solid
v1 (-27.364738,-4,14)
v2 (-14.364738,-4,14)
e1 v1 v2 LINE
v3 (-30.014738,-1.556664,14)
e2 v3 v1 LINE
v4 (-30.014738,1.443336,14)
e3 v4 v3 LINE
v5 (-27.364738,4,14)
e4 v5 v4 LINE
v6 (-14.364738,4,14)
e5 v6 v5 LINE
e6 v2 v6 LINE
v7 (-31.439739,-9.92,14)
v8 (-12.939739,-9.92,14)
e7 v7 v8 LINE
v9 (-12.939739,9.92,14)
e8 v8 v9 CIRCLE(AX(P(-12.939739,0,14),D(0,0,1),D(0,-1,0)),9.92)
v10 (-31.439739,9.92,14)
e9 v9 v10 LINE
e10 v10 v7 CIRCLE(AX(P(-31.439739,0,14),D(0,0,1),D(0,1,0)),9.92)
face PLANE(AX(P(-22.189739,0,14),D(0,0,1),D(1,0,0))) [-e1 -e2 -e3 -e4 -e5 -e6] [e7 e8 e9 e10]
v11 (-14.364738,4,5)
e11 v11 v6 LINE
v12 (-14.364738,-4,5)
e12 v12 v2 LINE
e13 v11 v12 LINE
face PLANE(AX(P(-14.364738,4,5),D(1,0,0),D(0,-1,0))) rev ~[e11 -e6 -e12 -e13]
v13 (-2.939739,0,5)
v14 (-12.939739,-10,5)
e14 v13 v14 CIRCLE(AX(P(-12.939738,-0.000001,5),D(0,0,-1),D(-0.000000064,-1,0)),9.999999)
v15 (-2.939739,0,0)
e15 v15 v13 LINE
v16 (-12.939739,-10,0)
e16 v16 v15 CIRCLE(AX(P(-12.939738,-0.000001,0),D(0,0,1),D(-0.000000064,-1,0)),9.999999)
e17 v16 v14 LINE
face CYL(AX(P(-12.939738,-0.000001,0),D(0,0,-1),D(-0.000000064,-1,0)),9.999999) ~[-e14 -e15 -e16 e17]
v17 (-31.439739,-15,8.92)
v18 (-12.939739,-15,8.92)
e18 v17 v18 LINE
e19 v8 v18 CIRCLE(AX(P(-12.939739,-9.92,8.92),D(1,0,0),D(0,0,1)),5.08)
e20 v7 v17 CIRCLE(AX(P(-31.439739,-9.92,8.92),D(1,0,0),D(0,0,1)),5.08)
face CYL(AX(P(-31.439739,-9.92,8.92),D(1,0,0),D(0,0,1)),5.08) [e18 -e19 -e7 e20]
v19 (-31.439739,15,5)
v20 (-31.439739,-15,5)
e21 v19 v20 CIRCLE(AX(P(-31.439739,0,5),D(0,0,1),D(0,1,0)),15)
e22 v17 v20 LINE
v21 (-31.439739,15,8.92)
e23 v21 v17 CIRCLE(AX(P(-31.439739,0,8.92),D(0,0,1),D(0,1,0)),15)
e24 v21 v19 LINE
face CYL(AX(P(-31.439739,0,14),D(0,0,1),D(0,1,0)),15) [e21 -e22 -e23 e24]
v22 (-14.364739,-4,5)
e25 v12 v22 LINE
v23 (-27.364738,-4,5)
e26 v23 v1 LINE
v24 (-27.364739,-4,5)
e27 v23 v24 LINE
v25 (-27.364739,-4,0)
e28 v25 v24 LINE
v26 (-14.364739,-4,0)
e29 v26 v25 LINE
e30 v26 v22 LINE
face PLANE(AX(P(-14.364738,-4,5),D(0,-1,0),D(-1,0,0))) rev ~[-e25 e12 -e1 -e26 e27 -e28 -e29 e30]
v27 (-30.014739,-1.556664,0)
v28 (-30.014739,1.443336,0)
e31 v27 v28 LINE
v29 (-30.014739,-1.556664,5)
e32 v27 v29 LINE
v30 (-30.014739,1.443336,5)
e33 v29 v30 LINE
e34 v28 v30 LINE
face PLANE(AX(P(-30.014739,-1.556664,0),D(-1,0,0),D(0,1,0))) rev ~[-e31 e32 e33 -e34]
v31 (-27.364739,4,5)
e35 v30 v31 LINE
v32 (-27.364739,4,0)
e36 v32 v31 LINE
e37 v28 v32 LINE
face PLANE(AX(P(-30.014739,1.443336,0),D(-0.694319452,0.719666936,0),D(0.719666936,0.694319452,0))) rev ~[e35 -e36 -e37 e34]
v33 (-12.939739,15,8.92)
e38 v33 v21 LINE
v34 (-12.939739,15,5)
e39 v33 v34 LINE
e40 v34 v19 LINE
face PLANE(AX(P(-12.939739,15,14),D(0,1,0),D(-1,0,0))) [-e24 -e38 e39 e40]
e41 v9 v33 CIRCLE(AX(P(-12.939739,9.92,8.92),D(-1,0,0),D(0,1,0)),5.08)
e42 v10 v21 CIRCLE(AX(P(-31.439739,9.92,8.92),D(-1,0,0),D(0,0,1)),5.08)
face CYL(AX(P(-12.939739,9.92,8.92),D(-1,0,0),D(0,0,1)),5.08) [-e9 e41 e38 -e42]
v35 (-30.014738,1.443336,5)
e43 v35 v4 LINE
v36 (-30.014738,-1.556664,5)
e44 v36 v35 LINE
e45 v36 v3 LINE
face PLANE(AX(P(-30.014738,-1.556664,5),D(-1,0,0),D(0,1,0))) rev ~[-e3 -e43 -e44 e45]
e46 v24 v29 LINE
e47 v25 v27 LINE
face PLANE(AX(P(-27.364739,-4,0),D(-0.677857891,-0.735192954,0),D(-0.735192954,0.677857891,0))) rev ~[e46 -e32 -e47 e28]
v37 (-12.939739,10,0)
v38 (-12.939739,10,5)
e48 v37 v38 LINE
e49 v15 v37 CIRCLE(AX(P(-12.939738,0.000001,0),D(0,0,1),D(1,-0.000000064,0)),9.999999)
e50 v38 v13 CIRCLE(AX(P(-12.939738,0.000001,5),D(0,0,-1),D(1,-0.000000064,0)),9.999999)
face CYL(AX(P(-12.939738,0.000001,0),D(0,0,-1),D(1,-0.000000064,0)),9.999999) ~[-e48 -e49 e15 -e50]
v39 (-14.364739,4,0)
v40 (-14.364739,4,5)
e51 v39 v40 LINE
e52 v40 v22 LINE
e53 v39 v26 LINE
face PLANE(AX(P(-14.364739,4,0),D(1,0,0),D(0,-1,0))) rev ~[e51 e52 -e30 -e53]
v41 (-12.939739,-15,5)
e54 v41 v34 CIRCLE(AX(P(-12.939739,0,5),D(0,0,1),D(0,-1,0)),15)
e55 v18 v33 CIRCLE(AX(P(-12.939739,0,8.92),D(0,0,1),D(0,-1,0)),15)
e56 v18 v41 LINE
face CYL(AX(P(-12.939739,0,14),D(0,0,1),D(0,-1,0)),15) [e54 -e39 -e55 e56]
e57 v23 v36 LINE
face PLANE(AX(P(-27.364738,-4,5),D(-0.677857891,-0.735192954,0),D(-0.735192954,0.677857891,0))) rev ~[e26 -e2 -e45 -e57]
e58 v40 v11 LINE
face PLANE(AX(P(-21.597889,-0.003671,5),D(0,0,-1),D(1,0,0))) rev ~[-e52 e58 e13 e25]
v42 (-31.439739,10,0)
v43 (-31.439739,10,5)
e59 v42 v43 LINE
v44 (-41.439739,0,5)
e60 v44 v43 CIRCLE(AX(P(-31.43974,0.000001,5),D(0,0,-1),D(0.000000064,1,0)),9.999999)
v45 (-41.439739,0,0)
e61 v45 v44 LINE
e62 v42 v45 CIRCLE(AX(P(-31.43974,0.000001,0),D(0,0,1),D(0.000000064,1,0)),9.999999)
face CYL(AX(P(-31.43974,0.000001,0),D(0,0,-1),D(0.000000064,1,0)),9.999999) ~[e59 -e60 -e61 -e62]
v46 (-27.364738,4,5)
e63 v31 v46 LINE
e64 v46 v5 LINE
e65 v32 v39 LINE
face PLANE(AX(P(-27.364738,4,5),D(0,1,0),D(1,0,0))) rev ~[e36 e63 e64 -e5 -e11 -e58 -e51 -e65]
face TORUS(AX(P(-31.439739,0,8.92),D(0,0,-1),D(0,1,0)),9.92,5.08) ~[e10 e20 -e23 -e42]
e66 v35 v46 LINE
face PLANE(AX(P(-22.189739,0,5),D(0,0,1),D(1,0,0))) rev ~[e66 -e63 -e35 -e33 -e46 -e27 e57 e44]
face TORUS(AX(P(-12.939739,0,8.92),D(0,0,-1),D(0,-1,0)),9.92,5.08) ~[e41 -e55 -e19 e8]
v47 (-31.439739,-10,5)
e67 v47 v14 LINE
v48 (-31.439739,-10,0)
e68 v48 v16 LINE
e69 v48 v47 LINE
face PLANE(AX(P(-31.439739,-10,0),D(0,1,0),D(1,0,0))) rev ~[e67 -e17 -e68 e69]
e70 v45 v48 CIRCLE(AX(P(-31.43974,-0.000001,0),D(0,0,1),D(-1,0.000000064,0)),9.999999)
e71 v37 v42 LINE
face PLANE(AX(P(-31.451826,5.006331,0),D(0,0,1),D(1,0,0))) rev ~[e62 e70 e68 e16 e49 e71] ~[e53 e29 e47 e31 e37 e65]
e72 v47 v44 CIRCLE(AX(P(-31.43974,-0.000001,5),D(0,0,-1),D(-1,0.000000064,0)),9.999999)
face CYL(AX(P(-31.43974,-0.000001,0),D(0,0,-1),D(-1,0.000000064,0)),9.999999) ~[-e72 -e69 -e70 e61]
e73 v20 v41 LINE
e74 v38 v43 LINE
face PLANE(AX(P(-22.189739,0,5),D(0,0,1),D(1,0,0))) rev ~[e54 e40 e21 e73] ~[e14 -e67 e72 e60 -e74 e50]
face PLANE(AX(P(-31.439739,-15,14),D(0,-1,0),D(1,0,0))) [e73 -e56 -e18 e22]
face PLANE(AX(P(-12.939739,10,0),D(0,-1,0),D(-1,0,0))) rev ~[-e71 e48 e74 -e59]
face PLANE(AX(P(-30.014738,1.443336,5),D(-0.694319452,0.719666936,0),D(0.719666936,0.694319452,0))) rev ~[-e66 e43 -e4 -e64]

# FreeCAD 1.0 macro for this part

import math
import FreeCAD as App
import Part
import Sketcher

V = App.Vector


def edges_at(feature, points):
    """Names of the edges that pass closest to the given points."""
    edges = feature.Shape.Edges
    near = lambda p: min(range(len(edges)), key=lambda i: edges[i].distToShape(Part.Vertex(*p))[0])
    return sorted({f"Edge{near(p) + 1}" for p in points})


def add_polygon(sketch, points):
    """Adds a closed chain of lines whose ends are joined by coincident constraints."""
    first, n = sketch.GeometryCount, len(points)
    for a, b in zip(points, points[1:] + points[:1]):
        sketch.addGeometry(Part.LineSegment(App.Vector(*a, 0), App.Vector(*b, 0)), False)
    for i in range(n):
        sketch.addConstraint(Sketcher.Constraint("Coincident", first + i, 2, first + (i + 1) % n, 1))

doc = App.newDocument("Part")
body = doc.addObject("PartDesign::Body", "Body")

# Sketch on XY plane
sketch1 = body.newObject("Sketcher::SketchObject", "Sketch")
sketch1.AttachmentSupport = (doc.getObject("XY_Plane"), [""])
sketch1.MapMode = "FlatFace"
sketch1.addGeometry(Part.ArcOfCircle(Part.Circle(V(-31.4, 0, 0), V(0, 0, 1), 10), math.radians(90), math.radians(180)), False)  # 0
sketch1.addGeometry(Part.ArcOfCircle(Part.Circle(V(-31.4, 0, 0), V(0, 0, 1), 10), math.radians(180), math.radians(270)), False)  # 1
sketch1.addGeometry(Part.LineSegment(V(-31.4, -10, 0), V(-12.9, -10, 0)), False)  # 2
sketch1.addGeometry(Part.ArcOfCircle(Part.Circle(V(-12.9, 0, 0), V(0, 0, 1), 10), math.radians(-90), math.radians(0)), False)  # 3
sketch1.addGeometry(Part.ArcOfCircle(Part.Circle(V(-12.9, 0, 0), V(0, 0, 1), 10), math.radians(0), math.radians(90)), False)  # 4
sketch1.addGeometry(Part.LineSegment(V(-12.9, 10, 0), V(-31.4, 10, 0)), False)  # 5
add_polygon(sketch1, [(-27.4, -4), (-30, -1.6), (-30, 1.4), (-27.4, 4), (-14.4, 4), (-14.4, -4)])  # lines 6-11
sketch1.addConstraint([
    Sketcher.Constraint("Tangent", 0, 2, 1, 1),
    Sketcher.Constraint("Tangent", 1, 2, 2, 1),
    Sketcher.Constraint("Tangent", 2, 2, 3, 1),
    Sketcher.Constraint("Tangent", 3, 2, 4, 1),
    Sketcher.Constraint("Tangent", 4, 2, 5, 1),
    Sketcher.Constraint("Tangent", 5, 2, 0, 1),
    Sketcher.Constraint("Horizontal", 2),
    Sketcher.Constraint("Horizontal", 5),
    Sketcher.Constraint("Vertical", 7),
    Sketcher.Constraint("Horizontal", 9),
    Sketcher.Constraint("Vertical", 10),
    Sketcher.Constraint("Horizontal", 11),
    Sketcher.Constraint("Equal", 0, 1),
    Sketcher.Constraint("Equal", 1, 3),
    Sketcher.Constraint("Symmetric", 8, 2, 11, 2, -1),
    Sketcher.Constraint("PointOnObject", 0, 3, -1),
    Sketcher.Constraint("PointOnObject", 0, 2, -1),
    Sketcher.Constraint("PointOnObject", 3, 2, -1),
    Sketcher.Constraint("Radius", 0, 9.999999),
    Sketcher.Constraint("DistanceX", 9, 1, 9, 2, 13.0),
    Sketcher.Constraint("DistanceY", 7, 1, 7, 2, 3.0),
    Sketcher.Constraint("DistanceY", 10, 2, 10, 1, 8.0),
    Sketcher.Constraint("DistanceX", 2, 1, 2, 2, 18.5),
    Sketcher.Constraint("DistanceX", 7, 2, 8, 2, 2.65),
    Sketcher.Constraint("DistanceX", 1, 3, 6, 2, 1.425001),
    Sketcher.Constraint("Distance", 8, 3.682259),
    Sketcher.Constraint("DistanceX", 0, 3, -1, 1, 31.43974),
])
pad1 = body.newObject("PartDesign::Pad", "Pad")
pad1.Profile = sketch1
pad1.Length = 14

# Sketch on XY plane
sketch2 = body.newObject("Sketcher::SketchObject", "Sketch001")
sketch2.AttachmentSupport = (doc.getObject("XY_Plane"), [""])
sketch2.MapMode = "FlatFace"
sketch2.AttachmentOffset = App.Placement(V(0, 0, 14), App.Rotation())
sketch2.addGeometry([
    Part.LineSegment(V(-13, 15, 0), V(-31, 15, 0)),
    Part.ArcOfCircle(Part.Circle(V(-31, 0, 0), V(0, 0, 1), 15), math.radians(90), math.radians(270)),
    Part.LineSegment(V(-31, -15, 0), V(-13, -15, 0)),
    Part.ArcOfCircle(Part.Circle(V(-13, 0, 0), V(0, 0, 1), 15), math.radians(-90), math.radians(90)),
], False)
sketch2.addConstraint([
    Sketcher.Constraint("Tangent", 0, 2, 1, 1),
    Sketcher.Constraint("Tangent", 1, 2, 2, 1),
    Sketcher.Constraint("Tangent", 2, 2, 3, 1),
    Sketcher.Constraint("Tangent", 3, 2, 0, 1),
    Sketcher.Constraint("Horizontal", 0),
    Sketcher.Constraint("Horizontal", 2),
    Sketcher.Constraint("PointOnObject", 1, 3, -1),
    Sketcher.Constraint("Radius", 1, 15.0),
    Sketcher.Constraint("DistanceX", 0, 2, 0, 1, 18.5),
    Sketcher.Constraint("DistanceX", 1, 3, -1, 1, 31.439739),
])
pad2 = body.newObject("PartDesign::Pad", "Pad001")
pad2.Profile = sketch2
pad2.Length = 9
pad2.Reversed = True

# Sketch on XY plane
sketch3 = body.newObject("Sketcher::SketchObject", "Sketch002")
sketch3.AttachmentSupport = (doc.getObject("XY_Plane"), [""])
sketch3.MapMode = "FlatFace"
sketch3.AttachmentOffset = App.Placement(V(0, 0, 5), App.Rotation())
add_polygon(sketch3, [(-30, 1.4), (-27.4, 4), (-14.4, 4), (-14.4, -4), (-27.4, -4), (-30, -1.6)])  # lines 0-5
sketch3.addConstraint([
    Sketcher.Constraint("Horizontal", 1),
    Sketcher.Constraint("Vertical", 2),
    Sketcher.Constraint("Horizontal", 3),
    Sketcher.Constraint("Vertical", 5),
    Sketcher.Constraint("Symmetric", 0, 2, 3, 2, -1),
    Sketcher.Constraint("DistanceX", 1, 1, 1, 2, 13.0),
    Sketcher.Constraint("DistanceY", 2, 2, 2, 1, 8.0),
    Sketcher.Constraint("DistanceY", 5, 1, 5, 2, 3.0),
    Sketcher.Constraint("DistanceX", 4, 2, 3, 2, 2.65),
    Sketcher.Constraint("Distance", 0, 3.682259),
    Sketcher.Constraint("DistanceX", 4, 2, -1, 1, 30.014738),
])
pocket1 = body.newObject("PartDesign::Pocket", "Pocket")
pocket1.Profile = sketch3
pocket1.Length = 25.4
pocket1.Reversed = True
doc.recompute()

fillet = body.newObject("PartDesign::Fillet", "Fillet")
fillet.Base = (pocket1, edges_at(pocket1, [(-22.19, -15, 14)]))
fillet.Radius = 5.08

doc.recompute()
